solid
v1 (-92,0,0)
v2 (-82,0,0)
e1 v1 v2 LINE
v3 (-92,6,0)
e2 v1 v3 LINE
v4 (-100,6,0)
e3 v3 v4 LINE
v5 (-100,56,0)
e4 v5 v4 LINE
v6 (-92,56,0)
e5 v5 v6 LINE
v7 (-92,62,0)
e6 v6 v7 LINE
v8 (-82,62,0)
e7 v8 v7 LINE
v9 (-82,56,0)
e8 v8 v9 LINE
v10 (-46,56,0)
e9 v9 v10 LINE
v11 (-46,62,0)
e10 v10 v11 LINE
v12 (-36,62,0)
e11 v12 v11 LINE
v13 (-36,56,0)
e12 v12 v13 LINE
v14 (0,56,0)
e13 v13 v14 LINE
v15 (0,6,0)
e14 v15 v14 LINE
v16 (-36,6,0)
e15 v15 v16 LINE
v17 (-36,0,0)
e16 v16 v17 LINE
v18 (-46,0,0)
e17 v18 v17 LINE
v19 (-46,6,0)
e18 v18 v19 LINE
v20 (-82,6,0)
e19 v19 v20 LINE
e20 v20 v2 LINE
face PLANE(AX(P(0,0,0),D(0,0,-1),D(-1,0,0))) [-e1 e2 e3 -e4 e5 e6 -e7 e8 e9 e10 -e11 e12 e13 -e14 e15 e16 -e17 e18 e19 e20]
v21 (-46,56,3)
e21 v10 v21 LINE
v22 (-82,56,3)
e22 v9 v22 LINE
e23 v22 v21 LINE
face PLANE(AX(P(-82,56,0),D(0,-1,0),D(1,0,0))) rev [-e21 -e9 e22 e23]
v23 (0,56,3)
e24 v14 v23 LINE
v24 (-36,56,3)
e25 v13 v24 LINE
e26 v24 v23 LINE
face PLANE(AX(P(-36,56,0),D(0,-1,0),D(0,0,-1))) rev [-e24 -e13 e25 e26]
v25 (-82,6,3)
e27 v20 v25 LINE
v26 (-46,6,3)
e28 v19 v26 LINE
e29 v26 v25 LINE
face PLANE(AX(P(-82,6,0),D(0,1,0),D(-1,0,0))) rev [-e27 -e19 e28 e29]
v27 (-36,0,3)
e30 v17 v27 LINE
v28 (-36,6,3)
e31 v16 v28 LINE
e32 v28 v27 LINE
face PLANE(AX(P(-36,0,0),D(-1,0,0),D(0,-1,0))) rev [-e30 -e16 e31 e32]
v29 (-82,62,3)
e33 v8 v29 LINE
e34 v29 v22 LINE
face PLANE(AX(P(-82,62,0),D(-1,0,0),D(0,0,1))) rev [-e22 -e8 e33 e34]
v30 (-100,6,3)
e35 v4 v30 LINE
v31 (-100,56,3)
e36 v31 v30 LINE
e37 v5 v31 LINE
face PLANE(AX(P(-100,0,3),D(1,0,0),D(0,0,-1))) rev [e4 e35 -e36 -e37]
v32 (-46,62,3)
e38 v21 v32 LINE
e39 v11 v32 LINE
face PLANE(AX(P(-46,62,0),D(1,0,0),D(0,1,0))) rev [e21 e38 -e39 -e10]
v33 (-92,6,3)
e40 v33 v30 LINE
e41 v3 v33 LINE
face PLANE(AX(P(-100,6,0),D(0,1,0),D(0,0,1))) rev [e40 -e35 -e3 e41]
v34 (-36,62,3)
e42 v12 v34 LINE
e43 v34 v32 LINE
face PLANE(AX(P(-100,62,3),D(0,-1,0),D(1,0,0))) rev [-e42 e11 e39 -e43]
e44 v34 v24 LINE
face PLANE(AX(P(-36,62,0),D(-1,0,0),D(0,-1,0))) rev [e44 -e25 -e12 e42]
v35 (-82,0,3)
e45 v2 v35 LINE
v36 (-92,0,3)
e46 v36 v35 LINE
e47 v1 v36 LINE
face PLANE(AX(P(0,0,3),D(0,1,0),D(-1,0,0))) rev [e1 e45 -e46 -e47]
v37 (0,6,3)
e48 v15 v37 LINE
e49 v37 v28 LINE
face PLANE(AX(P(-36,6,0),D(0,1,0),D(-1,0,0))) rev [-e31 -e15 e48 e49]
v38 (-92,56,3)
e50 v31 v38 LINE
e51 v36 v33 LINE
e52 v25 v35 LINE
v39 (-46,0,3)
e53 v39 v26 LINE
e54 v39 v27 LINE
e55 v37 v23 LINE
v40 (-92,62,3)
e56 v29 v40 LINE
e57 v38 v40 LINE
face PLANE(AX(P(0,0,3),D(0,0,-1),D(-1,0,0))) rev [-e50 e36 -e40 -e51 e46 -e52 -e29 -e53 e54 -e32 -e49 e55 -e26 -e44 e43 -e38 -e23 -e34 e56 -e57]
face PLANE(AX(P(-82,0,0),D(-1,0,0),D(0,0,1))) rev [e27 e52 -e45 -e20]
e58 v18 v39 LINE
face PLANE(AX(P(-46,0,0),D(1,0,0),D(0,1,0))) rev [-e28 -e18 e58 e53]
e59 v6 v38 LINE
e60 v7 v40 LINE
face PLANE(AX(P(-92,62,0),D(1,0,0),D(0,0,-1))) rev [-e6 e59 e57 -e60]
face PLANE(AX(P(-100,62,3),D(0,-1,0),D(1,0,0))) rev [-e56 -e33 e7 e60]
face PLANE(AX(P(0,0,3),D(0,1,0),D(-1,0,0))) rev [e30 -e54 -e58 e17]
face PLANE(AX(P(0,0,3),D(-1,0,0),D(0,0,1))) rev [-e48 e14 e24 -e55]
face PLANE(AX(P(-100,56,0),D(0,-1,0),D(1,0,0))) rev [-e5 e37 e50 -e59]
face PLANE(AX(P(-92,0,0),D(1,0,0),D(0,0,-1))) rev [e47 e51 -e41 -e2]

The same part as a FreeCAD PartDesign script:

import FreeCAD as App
import Part
import Sketcher

V = App.Vector
Q = App.Units.Quantity

doc = App.newDocument("Part")
params = doc.addObject("Spreadsheet::Sheet", "Params")
for row, (alias, value) in enumerate([
    ("sketch1_width", "100 mm"),
    ("sketch1_height", "62 mm"),
    ("pad1_length", "3 mm"),
    ("sketch2_width", "8 mm"),
    ("sketch2_width2", "36 mm"),
    ("sketch2_height", "6 mm"),
    ("pocket1_length", "3 mm"),
], start=1):
    params.set(f"A{row}", alias)
    params.set(f"B{row}", "=" + value)
    params.setAlias(f"B{row}", alias)

body = doc.addObject("PartDesign::Body", "Body")

sketch1 = body.newObject("Sketcher::SketchObject", "Sketch")
sketch1.AttachmentSupport = (doc.getObject("XY_Plane"), [""])
sketch1.MapMode = "FlatFace"
sketch1.addGeometry(Part.LineSegment(V(-100, 62, 0), V(-100, 0, 0)), False)
sketch1.addGeometry(Part.LineSegment(V(-100, 0, 0), V(0, 0, 0)), False)
sketch1.addGeometry(Part.LineSegment(V(0, 0, 0), V(0, 62, 0)), False)
sketch1.addGeometry(Part.LineSegment(V(0, 62, 0), V(-100, 62, 0)), False)
sketch1.addConstraint(Sketcher.Constraint("Coincident", 0, 2, 1, 1))
sketch1.addConstraint(Sketcher.Constraint("Coincident", 1, 2, 2, 1))
sketch1.addConstraint(Sketcher.Constraint("Coincident", 2, 2, 3, 1))
sketch1.addConstraint(Sketcher.Constraint("Coincident", 3, 2, 0, 1))
sketch1.addConstraint(Sketcher.Constraint("Vertical", 0))
sketch1.addConstraint(Sketcher.Constraint("Horizontal", 1))
sketch1.addConstraint(Sketcher.Constraint("Vertical", 2))
sketch1.addConstraint(Sketcher.Constraint("Horizontal", 3))
sketch1.addConstraint(Sketcher.Constraint("Coincident", 1, 2, -1, 1))
sketch1.addConstraint(Sketcher.Constraint("DistanceX", 1, 1, 1, 2, Q("100 mm")))
sketch1.addConstraint(Sketcher.Constraint("DistanceY", 0, 2, 0, 1, Q("62 mm")))
sketch1.setExpression("Constraints[9]", "Params.sketch1_width")
sketch1.setExpression("Constraints[10]", "Params.sketch1_height")
pad1 = body.newObject("PartDesign::Pad", "Pad")
pad1.Profile = sketch1
pad1.setExpression("Length", "Params.pad1_length")

sketch2 = body.newObject("Sketcher::SketchObject", "Sketch001")
sketch2.AttachmentSupport = (doc.getObject("XY_Plane"), [""])
sketch2.MapMode = "FlatFace"
sketch2.AttachmentOffset = App.Placement(V(0, 0, 3), App.Rotation())
sketch2.addGeometry(Part.LineSegment(V(-100, 6, 0), V(-100, 0, 0)), False)
sketch2.addGeometry(Part.LineSegment(V(-100, 0, 0), V(-92, 0, 0)), False)
sketch2.addGeometry(Part.LineSegment(V(-92, 0, 0), V(-92, 6, 0)), False)
sketch2.addGeometry(Part.LineSegment(V(-92, 6, 0), V(-100, 6, 0)), False)
sketch2.addGeometry(Part.LineSegment(V(-82, 6, 0), V(-82, 0, 0)), False)
sketch2.addGeometry(Part.LineSegment(V(-82, 0, 0), V(-46, 0, 0)), False)
sketch2.addGeometry(Part.LineSegment(V(-46, 0, 0), V(-46, 6, 0)), False)
sketch2.addGeometry(Part.LineSegment(V(-46, 6, 0), V(-82, 6, 0)), False)
sketch2.addGeometry(Part.LineSegment(V(-36, 6, 0), V(-36, 0, 0)), False)
sketch2.addGeometry(Part.LineSegment(V(-36, 0, 0), V(0, 0, 0)), False)
sketch2.addGeometry(Part.LineSegment(V(0, 0, 0), V(0, 6, 0)), False)
sketch2.addGeometry(Part.LineSegment(V(0, 6, 0), V(-36, 6, 0)), False)
sketch2.addGeometry(Part.LineSegment(V(-36, 62, 0), V(-36, 56, 0)), False)
sketch2.addGeometry(Part.LineSegment(V(-36, 56, 0), V(0, 56, 0)), False)
sketch2.addGeometry(Part.LineSegment(V(0, 56, 0), V(0, 62, 0)), False)
sketch2.addGeometry(Part.LineSegment(V(0, 62, 0), V(-36, 62, 0)), False)
sketch2.addGeometry(Part.LineSegment(V(-82, 62, 0), V(-82, 56, 0)), False)
sketch2.addGeometry(Part.LineSegment(V(-82, 56, 0), V(-46, 56, 0)), False)
sketch2.addGeometry(Part.LineSegment(V(-46, 56, 0), V(-46, 62, 0)), False)
sketch2.addGeometry(Part.LineSegment(V(-46, 62, 0), V(-82, 62, 0)), False)
sketch2.addGeometry(Part.LineSegment(V(-100, 62, 0), V(-100, 56, 0)), False)
sketch2.addGeometry(Part.LineSegment(V(-100, 56, 0), V(-92, 56, 0)), False)
sketch2.addGeometry(Part.LineSegment(V(-92, 56, 0), V(-92, 62, 0)), False)
sketch2.addGeometry(Part.LineSegment(V(-92, 62, 0), V(-100, 62, 0)), False)
sketch2.addConstraint(Sketcher.Constraint("Coincident", 0, 2, 1, 1))
sketch2.addConstraint(Sketcher.Constraint("Coincident", 1, 2, 2, 1))
sketch2.addConstraint(Sketcher.Constraint("Coincident", 2, 2, 3, 1))
sketch2.addConstraint(Sketcher.Constraint("Coincident", 3, 2, 0, 1))
sketch2.addConstraint(Sketcher.Constraint("Coincident", 4, 2, 5, 1))
sketch2.addConstraint(Sketcher.Constraint("Coincident", 5, 2, 6, 1))
sketch2.addConstraint(Sketcher.Constraint("Coincident", 6, 2, 7, 1))
sketch2.addConstraint(Sketcher.Constraint("Coincident", 7, 2, 4, 1))
sketch2.addConstraint(Sketcher.Constraint("Coincident", 8, 2, 9, 1))
sketch2.addConstraint(Sketcher.Constraint("Coincident", 9, 2, 10, 1))
sketch2.addConstraint(Sketcher.Constraint("Coincident", 10, 2, 11, 1))
sketch2.addConstraint(Sketcher.Constraint("Coincident", 11, 2, 8, 1))
sketch2.addConstraint(Sketcher.Constraint("Coincident", 12, 2, 13, 1))
sketch2.addConstraint(Sketcher.Constraint("Coincident", 13, 2, 14, 1))
sketch2.addConstraint(Sketcher.Constraint("Coincident", 14, 2, 15, 1))
sketch2.addConstraint(Sketcher.Constraint("Coincident", 15, 2, 12, 1))
sketch2.addConstraint(Sketcher.Constraint("Coincident", 16, 2, 17, 1))
sketch2.addConstraint(Sketcher.Constraint("Coincident", 17, 2, 18, 1))
sketch2.addConstraint(Sketcher.Constraint("Coincident", 18, 2, 19, 1))
sketch2.addConstraint(Sketcher.Constraint("Coincident", 19, 2, 16, 1))
sketch2.addConstraint(Sketcher.Constraint("Coincident", 20, 2, 21, 1))
sketch2.addConstraint(Sketcher.Constraint("Coincident", 21, 2, 22, 1))
sketch2.addConstraint(Sketcher.Constraint("Coincident", 22, 2, 23, 1))
sketch2.addConstraint(Sketcher.Constraint("Coincident", 23, 2, 20, 1))
sketch2.addConstraint(Sketcher.Constraint("Vertical", 0))
sketch2.addConstraint(Sketcher.Constraint("Horizontal", 1))
sketch2.addConstraint(Sketcher.Constraint("Vertical", 2))
sketch2.addConstraint(Sketcher.Constraint("Horizontal", 3))
sketch2.addConstraint(Sketcher.Constraint("Vertical", 4))
sketch2.addConstraint(Sketcher.Constraint("Horizontal", 5))
sketch2.addConstraint(Sketcher.Constraint("Vertical", 6))
sketch2.addConstraint(Sketcher.Constraint("Horizontal", 7))
sketch2.addConstraint(Sketcher.Constraint("Vertical", 8))
sketch2.addConstraint(Sketcher.Constraint("Horizontal", 9))
sketch2.addConstraint(Sketcher.Constraint("Vertical", 10))
sketch2.addConstraint(Sketcher.Constraint("Horizontal", 11))
sketch2.addConstraint(Sketcher.Constraint("Vertical", 12))
sketch2.addConstraint(Sketcher.Constraint("Horizontal", 13))
sketch2.addConstraint(Sketcher.Constraint("Vertical", 14))
sketch2.addConstraint(Sketcher.Constraint("Horizontal", 15))
sketch2.addConstraint(Sketcher.Constraint("Vertical", 16))
sketch2.addConstraint(Sketcher.Constraint("Horizontal", 17))
sketch2.addConstraint(Sketcher.Constraint("Vertical", 18))
sketch2.addConstraint(Sketcher.Constraint("Horizontal", 19))
sketch2.addConstraint(Sketcher.Constraint("Vertical", 20))
sketch2.addConstraint(Sketcher.Constraint("Horizontal", 21))
sketch2.addConstraint(Sketcher.Constraint("Vertical", 22))
sketch2.addConstraint(Sketcher.Constraint("Horizontal", 23))
sketch2.addConstraint(Sketcher.Constraint("Coincident", 9, 2, -1, 1))
sketch2.addConstraint(Sketcher.Constraint("PointOnObject", 0, 2, -1))
sketch2.addConstraint(Sketcher.Constraint("PointOnObject", 4, 2, -1))
sketch2.addConstraint(Sketcher.Constraint("PointOnObject", 13, 2, -2))
sketch2.addConstraint(Sketcher.Constraint("Horizontal", 3, 2, 6, 2))
sketch2.addConstraint(Sketcher.Constraint("Horizontal", 7, 2, 10, 2))
sketch2.addConstraint(Sketcher.Constraint("Horizontal", 13, 2, 16, 2))
sketch2.addConstraint(Sketcher.Constraint("Horizontal", 15, 2, 18, 2))
sketch2.addConstraint(Sketcher.Constraint("Horizontal", 17, 2, 20, 2))
sketch2.addConstraint(Sketcher.Constraint("Horizontal", 19, 2, 22, 2))
sketch2.addConstraint(Sketcher.Constraint("Vertical", 11, 2, 12, 2))
sketch2.addConstraint(Sketcher.Constraint("Vertical", 7, 2, 16, 2))
sketch2.addConstraint(Sketcher.Constraint("Vertical", 6, 2, 17, 2))
sketch2.addConstraint(Sketcher.Constraint("Vertical", 3, 2, 20, 2))
sketch2.addConstraint(Sketcher.Constraint("Vertical", 2, 2, 21, 2))
sketch2.addConstraint(Sketcher.Constraint("Equal", 7, 9))
sketch2.addConstraint(Sketcher.Constraint("Equal", 10, 12))
sketch2.addConstraint(Sketcher.Constraint("DistanceX", 1, 1, 1, 2, Q("8 mm")))
sketch2.addConstraint(Sketcher.Constraint("DistanceX", 5, 1, 5, 2, Q("36 mm")))
sketch2.addConstraint(Sketcher.Constraint("DistanceY", 0, 2, 0, 1, Q("6 mm")))
sketch2.addConstraint(Sketcher.Constraint("DistanceX", 0, 2, -1, 1, Q("100 mm")))
sketch2.addConstraint(Sketcher.Constraint("DistanceX", 4, 2, -1, 1, Q("82 mm")))
sketch2.addConstraint(Sketcher.Constraint("DistanceY", -1, 1, 12, 2, Q("56 mm")))
sketch2.setExpression("Constraints[65]", "Params.sketch2_width")
sketch2.setExpression("Constraints[66]", "Params.sketch2_width2")
sketch2.setExpression("Constraints[67]", "Params.sketch2_height")
pocket1 = body.newObject("PartDesign::Pocket", "Pocket")
pocket1.Profile = sketch2
pocket1.setExpression("Length", "Params.pocket1_length")

doc.recompute()
